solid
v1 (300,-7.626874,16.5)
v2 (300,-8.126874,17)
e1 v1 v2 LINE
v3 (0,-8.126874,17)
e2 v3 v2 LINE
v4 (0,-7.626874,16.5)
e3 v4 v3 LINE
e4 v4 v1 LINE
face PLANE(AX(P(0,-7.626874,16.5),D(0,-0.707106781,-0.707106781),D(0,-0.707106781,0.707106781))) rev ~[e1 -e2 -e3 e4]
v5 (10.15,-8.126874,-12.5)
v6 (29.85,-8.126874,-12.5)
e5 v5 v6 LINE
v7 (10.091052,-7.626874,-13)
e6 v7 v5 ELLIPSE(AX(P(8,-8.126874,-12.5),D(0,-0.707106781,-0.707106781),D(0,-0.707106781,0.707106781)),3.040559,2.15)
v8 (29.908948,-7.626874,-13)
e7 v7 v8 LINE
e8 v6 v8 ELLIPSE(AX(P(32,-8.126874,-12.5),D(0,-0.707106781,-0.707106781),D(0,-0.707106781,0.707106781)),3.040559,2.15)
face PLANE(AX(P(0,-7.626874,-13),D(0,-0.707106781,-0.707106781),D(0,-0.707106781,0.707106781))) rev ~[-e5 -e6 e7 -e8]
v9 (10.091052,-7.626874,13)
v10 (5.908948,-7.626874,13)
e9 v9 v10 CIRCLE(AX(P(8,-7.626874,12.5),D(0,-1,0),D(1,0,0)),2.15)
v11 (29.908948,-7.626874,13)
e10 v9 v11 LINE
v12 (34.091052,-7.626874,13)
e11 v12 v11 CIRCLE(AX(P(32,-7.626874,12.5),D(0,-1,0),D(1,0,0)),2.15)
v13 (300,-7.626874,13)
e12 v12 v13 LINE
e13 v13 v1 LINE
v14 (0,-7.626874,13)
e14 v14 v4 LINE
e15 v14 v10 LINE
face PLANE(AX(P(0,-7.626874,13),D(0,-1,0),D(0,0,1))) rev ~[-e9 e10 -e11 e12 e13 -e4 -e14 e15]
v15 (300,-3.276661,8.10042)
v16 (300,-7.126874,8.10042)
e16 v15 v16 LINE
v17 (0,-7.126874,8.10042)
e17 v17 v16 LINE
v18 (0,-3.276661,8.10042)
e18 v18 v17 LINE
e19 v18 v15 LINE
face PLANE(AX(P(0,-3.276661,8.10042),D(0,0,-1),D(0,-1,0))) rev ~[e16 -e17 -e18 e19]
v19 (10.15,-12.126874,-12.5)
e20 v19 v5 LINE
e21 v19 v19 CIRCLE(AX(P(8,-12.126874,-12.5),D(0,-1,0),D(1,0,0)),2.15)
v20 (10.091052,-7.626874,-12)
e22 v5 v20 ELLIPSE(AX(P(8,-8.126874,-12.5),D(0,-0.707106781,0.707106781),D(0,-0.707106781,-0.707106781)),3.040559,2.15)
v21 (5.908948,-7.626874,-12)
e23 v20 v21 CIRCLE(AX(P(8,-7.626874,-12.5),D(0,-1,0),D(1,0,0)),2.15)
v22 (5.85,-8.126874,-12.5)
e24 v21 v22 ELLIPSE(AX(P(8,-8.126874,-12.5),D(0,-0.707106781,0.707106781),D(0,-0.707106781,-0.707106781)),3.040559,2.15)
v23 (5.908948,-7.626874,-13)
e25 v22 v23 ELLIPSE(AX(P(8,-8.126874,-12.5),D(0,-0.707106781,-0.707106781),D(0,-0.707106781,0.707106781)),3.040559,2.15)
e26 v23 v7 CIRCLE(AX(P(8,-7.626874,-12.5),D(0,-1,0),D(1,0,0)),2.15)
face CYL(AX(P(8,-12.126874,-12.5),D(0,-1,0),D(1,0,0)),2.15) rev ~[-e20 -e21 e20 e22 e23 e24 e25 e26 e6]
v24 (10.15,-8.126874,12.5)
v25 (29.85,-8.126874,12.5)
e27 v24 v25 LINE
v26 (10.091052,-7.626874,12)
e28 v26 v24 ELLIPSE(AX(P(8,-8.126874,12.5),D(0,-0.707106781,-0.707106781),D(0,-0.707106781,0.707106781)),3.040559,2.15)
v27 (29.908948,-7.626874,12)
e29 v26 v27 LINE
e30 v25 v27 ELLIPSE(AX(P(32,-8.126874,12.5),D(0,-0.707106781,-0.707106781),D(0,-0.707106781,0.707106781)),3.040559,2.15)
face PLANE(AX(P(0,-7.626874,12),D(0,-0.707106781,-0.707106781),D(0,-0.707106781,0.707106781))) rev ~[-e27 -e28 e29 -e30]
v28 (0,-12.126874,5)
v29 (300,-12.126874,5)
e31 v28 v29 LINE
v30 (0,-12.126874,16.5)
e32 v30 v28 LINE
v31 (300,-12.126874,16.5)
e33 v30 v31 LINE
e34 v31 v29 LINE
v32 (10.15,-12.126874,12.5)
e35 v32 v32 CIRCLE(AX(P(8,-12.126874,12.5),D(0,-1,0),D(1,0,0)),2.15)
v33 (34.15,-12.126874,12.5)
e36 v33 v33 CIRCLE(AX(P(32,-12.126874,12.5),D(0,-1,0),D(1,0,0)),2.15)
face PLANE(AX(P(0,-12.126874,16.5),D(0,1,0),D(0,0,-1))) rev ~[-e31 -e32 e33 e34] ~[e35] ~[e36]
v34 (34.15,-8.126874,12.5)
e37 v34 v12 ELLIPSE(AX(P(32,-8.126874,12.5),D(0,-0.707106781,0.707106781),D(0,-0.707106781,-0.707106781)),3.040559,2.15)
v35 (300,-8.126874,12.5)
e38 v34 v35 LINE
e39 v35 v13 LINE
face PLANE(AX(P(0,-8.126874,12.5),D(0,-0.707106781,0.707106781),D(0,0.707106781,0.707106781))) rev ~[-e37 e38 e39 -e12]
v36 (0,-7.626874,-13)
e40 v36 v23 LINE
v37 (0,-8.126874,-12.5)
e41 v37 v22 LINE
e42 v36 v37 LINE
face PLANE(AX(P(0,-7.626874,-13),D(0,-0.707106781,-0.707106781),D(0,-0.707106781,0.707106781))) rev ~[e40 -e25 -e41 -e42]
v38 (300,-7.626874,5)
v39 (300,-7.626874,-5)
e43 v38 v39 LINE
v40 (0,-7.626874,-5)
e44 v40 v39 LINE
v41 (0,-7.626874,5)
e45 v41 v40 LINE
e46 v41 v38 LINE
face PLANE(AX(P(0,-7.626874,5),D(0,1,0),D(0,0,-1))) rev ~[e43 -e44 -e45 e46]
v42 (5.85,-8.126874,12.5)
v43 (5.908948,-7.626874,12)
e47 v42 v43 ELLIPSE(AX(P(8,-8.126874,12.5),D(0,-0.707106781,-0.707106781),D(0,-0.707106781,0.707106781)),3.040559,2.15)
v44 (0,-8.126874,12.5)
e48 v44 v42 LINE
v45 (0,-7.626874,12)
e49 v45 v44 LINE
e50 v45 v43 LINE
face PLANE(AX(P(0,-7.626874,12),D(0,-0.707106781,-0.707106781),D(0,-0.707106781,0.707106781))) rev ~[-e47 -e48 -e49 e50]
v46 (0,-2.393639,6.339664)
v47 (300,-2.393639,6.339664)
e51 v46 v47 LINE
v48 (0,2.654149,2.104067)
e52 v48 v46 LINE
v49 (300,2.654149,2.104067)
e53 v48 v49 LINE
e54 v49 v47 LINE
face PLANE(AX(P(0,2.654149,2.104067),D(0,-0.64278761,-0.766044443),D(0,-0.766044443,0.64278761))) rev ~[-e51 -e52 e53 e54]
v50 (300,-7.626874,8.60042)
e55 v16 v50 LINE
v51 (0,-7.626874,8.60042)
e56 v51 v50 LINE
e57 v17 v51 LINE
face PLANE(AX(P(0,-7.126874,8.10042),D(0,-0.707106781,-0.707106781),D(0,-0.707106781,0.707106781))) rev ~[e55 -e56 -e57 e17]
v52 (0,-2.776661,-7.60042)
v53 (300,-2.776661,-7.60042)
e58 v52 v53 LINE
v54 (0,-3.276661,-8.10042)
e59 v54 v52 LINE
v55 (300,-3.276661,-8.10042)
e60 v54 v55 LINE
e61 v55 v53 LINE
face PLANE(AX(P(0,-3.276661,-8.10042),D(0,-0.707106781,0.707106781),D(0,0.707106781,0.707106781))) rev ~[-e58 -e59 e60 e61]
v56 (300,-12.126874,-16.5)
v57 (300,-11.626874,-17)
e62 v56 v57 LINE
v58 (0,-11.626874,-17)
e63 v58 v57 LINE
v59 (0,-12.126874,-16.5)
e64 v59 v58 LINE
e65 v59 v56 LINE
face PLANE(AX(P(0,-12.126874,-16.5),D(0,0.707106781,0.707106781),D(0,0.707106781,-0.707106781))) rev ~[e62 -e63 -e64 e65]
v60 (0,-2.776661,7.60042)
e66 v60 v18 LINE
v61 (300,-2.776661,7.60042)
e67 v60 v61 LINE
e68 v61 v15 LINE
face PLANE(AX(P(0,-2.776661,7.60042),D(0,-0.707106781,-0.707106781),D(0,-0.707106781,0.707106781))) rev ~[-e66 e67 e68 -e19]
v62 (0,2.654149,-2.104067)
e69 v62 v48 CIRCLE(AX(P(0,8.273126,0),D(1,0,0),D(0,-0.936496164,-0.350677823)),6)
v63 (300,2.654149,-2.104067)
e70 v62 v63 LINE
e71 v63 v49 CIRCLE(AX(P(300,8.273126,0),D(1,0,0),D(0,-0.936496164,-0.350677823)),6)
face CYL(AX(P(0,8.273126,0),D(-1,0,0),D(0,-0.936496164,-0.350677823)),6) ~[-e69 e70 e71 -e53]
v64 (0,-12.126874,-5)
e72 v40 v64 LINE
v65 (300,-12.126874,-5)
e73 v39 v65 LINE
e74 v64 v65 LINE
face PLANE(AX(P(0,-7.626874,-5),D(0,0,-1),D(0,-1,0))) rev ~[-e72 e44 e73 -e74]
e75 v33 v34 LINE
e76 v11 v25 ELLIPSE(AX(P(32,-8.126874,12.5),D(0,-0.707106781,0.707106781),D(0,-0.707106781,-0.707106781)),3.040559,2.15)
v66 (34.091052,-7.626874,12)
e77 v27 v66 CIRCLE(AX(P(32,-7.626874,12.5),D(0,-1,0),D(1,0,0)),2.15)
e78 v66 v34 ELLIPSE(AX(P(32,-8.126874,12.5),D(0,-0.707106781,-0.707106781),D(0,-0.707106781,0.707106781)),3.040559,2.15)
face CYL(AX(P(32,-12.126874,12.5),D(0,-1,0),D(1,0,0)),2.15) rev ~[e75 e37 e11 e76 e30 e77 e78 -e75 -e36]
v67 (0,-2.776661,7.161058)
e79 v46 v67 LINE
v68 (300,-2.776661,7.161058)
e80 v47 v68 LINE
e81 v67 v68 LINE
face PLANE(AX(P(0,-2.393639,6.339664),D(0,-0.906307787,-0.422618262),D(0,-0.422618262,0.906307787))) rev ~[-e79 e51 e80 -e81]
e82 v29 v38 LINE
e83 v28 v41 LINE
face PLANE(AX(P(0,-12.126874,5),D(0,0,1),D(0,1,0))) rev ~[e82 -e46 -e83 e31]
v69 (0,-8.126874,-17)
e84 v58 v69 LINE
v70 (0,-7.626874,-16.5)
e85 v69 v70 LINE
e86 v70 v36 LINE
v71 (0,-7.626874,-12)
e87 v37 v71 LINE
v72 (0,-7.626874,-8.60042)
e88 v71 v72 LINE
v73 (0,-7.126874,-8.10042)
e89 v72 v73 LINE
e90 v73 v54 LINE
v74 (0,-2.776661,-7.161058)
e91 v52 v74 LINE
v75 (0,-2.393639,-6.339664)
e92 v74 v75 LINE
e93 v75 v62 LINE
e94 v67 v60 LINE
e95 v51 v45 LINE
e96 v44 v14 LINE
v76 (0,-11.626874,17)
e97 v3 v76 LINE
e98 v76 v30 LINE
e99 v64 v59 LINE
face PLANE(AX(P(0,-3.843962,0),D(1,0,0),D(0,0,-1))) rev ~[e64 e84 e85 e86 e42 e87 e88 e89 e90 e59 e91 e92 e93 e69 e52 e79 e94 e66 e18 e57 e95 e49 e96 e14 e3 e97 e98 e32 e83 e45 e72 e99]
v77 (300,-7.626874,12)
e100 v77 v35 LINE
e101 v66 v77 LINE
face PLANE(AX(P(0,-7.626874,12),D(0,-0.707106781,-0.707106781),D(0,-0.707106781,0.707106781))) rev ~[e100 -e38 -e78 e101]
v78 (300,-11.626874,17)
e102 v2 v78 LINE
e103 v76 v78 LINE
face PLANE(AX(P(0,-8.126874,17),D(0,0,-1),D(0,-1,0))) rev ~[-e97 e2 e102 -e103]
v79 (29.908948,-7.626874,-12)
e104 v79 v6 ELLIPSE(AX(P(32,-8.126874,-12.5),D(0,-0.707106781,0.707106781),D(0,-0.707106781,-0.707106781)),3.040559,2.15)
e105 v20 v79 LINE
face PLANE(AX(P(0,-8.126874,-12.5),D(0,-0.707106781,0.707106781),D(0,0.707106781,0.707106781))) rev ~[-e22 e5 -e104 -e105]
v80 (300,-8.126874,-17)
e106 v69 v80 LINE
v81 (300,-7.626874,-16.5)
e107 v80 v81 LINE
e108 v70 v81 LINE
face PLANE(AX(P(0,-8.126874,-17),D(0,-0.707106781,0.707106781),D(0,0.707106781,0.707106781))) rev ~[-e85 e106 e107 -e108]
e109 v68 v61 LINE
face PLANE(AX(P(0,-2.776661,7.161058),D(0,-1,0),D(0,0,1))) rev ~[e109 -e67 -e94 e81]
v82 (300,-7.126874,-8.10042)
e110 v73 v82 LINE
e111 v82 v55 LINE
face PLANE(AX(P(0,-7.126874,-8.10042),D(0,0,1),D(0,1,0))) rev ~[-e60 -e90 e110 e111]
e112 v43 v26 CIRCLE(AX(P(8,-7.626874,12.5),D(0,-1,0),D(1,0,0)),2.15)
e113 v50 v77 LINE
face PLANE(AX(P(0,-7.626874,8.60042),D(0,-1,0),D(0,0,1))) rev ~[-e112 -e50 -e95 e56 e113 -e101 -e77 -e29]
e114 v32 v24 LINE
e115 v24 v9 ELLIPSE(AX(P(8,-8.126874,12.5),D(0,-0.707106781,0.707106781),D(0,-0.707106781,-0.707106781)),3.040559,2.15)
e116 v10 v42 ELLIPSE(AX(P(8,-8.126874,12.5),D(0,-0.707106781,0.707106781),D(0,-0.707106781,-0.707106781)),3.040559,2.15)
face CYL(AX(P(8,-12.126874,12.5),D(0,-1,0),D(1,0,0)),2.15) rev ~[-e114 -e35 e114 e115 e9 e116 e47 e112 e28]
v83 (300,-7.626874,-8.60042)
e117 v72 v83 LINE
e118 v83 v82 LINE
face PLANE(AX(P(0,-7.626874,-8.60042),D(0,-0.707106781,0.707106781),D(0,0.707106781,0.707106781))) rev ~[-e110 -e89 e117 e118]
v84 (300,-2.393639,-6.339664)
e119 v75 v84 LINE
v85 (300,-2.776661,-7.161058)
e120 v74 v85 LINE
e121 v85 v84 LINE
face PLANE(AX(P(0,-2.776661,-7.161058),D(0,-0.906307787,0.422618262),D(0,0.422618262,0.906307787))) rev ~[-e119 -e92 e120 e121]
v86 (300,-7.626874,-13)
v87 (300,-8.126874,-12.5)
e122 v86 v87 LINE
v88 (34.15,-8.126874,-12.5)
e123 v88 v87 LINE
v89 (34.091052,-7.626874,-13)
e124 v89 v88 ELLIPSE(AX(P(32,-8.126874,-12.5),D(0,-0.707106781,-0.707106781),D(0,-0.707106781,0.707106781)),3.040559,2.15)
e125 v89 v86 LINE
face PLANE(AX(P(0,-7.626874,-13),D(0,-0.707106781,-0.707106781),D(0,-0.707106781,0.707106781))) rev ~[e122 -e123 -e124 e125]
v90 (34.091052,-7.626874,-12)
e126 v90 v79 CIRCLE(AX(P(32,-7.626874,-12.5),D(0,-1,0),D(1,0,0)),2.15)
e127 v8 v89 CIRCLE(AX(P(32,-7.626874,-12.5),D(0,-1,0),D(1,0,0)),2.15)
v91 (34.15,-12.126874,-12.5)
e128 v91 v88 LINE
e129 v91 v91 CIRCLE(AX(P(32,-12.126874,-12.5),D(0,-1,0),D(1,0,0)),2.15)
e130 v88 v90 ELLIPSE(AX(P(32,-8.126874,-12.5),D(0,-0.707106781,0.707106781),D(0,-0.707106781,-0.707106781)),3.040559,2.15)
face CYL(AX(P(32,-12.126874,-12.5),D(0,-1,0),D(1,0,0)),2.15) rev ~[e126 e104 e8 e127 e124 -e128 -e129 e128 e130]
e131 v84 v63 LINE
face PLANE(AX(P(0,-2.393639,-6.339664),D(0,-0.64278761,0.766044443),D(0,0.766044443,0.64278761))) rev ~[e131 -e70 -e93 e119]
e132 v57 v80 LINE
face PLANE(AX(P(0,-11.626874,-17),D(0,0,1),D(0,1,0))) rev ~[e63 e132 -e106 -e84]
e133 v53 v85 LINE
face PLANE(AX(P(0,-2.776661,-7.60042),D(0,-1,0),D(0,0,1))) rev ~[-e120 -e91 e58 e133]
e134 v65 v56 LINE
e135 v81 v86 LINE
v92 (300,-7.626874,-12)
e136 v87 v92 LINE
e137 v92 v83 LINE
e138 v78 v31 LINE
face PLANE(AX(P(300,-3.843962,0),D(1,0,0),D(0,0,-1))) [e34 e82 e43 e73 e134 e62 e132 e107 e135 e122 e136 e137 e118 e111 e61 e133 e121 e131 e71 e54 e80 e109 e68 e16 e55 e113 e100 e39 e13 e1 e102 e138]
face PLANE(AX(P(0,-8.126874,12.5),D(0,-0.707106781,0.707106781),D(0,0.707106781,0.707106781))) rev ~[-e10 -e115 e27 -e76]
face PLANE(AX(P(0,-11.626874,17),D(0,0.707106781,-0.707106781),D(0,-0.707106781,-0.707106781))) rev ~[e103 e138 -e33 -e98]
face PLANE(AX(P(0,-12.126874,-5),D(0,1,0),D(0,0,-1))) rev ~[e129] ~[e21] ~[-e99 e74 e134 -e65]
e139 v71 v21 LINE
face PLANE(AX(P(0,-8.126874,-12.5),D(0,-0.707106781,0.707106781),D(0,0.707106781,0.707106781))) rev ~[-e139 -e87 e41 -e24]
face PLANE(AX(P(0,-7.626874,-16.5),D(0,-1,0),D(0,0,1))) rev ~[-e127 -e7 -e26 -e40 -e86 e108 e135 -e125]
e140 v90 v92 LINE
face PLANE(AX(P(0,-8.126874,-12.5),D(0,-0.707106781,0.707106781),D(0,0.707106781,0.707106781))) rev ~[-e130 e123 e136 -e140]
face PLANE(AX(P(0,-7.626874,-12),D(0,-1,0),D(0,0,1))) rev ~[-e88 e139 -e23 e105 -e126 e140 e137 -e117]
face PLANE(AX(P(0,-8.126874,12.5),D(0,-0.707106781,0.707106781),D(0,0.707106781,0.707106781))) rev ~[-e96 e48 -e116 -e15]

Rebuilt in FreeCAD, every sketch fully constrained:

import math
import FreeCAD as App
import Part
import Sketcher

V = App.Vector
Q = App.Units.Quantity

doc = App.newDocument("Part")
params = doc.addObject("Spreadsheet::Sheet", "Params")
for row, (alias, value) in enumerate([
    ("sketch1_radius", "6 mm"),
    ("sketch1_height", "10 mm"),
    ("sketch1_width", "3.5 mm"),
    ("sketch1_width2", "4.5 mm"),
    ("sketch1_height2", "11.5 mm"),
    ("pad1_length", "300 mm"),
    ("sketch2_diameter", "4.3 mm"),
    ("pocket1_length", "10 mm"),
], start=1):
    params.set(f"A{row}", alias)
    params.set(f"B{row}", "=" + value)
    params.setAlias(f"B{row}", alias)

body = doc.addObject("PartDesign::Body", "Body")

sketch1 = body.newObject("Sketcher::SketchObject", "Sketch")
sketch1.AttachmentSupport = (doc.getObject("YZ_Plane"), [""])
sketch1.MapMode = "FlatFace"
sketch1.addGeometry([
    Part.LineSegment(V(2.65, 2.1, 0), V(-2.39, 6.34, 0)),
    Part.LineSegment(V(-2.39, 6.34, 0), V(-2.78, 7.16, 0)),
    Part.LineSegment(V(-2.78, 7.16, 0), V(-2.78, 7.6, 0)),
    Part.LineSegment(V(-2.78, 7.6, 0), V(-3.28, 8.1, 0)),
    Part.LineSegment(V(-3.28, 8.1, 0), V(-7.13, 8.1, 0)),
    Part.LineSegment(V(-7.13, 8.1, 0), V(-7.63, 8.6, 0)),
    Part.LineSegment(V(-7.63, 8.6, 0), V(-7.63, 12, 0)),
    Part.LineSegment(V(-7.63, 12, 0), V(-8.13, 12.5, 0)),
    Part.LineSegment(V(-8.13, 12.5, 0), V(-7.63, 13, 0)),
    Part.LineSegment(V(-7.63, 13, 0), V(-7.63, 16.5, 0)),
    Part.LineSegment(V(-7.63, 16.5, 0), V(-8.13, 17, 0)),
    Part.LineSegment(V(-8.13, 17, 0), V(-11.63, 17, 0)),
    Part.LineSegment(V(-11.63, 17, 0), V(-12.13, 16.5, 0)),
    Part.LineSegment(V(-12.13, 16.5, 0), V(-12.13, 5, 0)),
    Part.LineSegment(V(-12.13, 5, 0), V(-7.63, 5, 0)),
    Part.LineSegment(V(-7.63, 5, 0), V(-7.63, -5, 0)),
    Part.LineSegment(V(-7.63, -5, 0), V(-12.13, -5, 0)),
    Part.LineSegment(V(-12.13, -5, 0), V(-12.13, -16.5, 0)),
    Part.LineSegment(V(-12.13, -16.5, 0), V(-11.63, -17, 0)),
    Part.LineSegment(V(-11.63, -17, 0), V(-8.13, -17, 0)),
    Part.LineSegment(V(-8.13, -17, 0), V(-7.63, -16.5, 0)),
    Part.LineSegment(V(-7.63, -16.5, 0), V(-7.63, -13, 0)),
    Part.LineSegment(V(-7.63, -13, 0), V(-8.13, -12.5, 0)),
    Part.LineSegment(V(-8.13, -12.5, 0), V(-7.63, -12, 0)),
    Part.LineSegment(V(-7.63, -12, 0), V(-7.63, -8.6, 0)),
    Part.LineSegment(V(-7.63, -8.6, 0), V(-7.13, -8.1, 0)),
    Part.LineSegment(V(-7.13, -8.1, 0), V(-3.28, -8.1, 0)),
    Part.LineSegment(V(-3.28, -8.1, 0), V(-2.78, -7.6, 0)),
    Part.LineSegment(V(-2.78, -7.6, 0), V(-2.78, -7.16, 0)),
    Part.LineSegment(V(-2.78, -7.16, 0), V(-2.39, -6.34, 0)),
    Part.LineSegment(V(-2.39, -6.34, 0), V(2.65, -2.1, 0)),
    Part.ArcOfCircle(Part.Circle(V(8.27, 0, 0), V(0, 0, 1), 6), math.radians(-159), math.radians(159)),
], False)
sketch1.addConstraint([
    Sketcher.Constraint("Coincident", 0, 2, 1, 1),
    Sketcher.Constraint("Coincident", 1, 2, 2, 1),
    Sketcher.Constraint("Coincident", 2, 2, 3, 1),
    Sketcher.Constraint("Coincident", 3, 2, 4, 1),
    Sketcher.Constraint("Coincident", 4, 2, 5, 1),
    Sketcher.Constraint("Coincident", 5, 2, 6, 1),
    Sketcher.Constraint("Coincident", 6, 2, 7, 1),
    Sketcher.Constraint("Coincident", 7, 2, 8, 1),
    Sketcher.Constraint("Coincident", 8, 2, 9, 1),
    Sketcher.Constraint("Coincident", 9, 2, 10, 1),
    Sketcher.Constraint("Coincident", 10, 2, 11, 1),
    Sketcher.Constraint("Coincident", 11, 2, 12, 1),
    Sketcher.Constraint("Coincident", 12, 2, 13, 1),
    Sketcher.Constraint("Coincident", 13, 2, 14, 1),
    Sketcher.Constraint("Coincident", 14, 2, 15, 1),
    Sketcher.Constraint("Coincident", 15, 2, 16, 1),
    Sketcher.Constraint("Coincident", 16, 2, 17, 1),
    Sketcher.Constraint("Coincident", 17, 2, 18, 1),
    Sketcher.Constraint("Coincident", 18, 2, 19, 1),
    Sketcher.Constraint("Coincident", 19, 2, 20, 1),
    Sketcher.Constraint("Coincident", 20, 2, 21, 1),
    Sketcher.Constraint("Coincident", 21, 2, 22, 1),
    Sketcher.Constraint("Coincident", 22, 2, 23, 1),
    Sketcher.Constraint("Coincident", 23, 2, 24, 1),
    Sketcher.Constraint("Coincident", 24, 2, 25, 1),
    Sketcher.Constraint("Coincident", 25, 2, 26, 1),
    Sketcher.Constraint("Coincident", 26, 2, 27, 1),
    Sketcher.Constraint("Coincident", 27, 2, 28, 1),
    Sketcher.Constraint("Coincident", 28, 2, 29, 1),
    Sketcher.Constraint("Coincident", 29, 2, 30, 1),
    Sketcher.Constraint("Coincident", 30, 2, 31, 1),
    Sketcher.Constraint("Coincident", 31, 2, 0, 1),
    Sketcher.Constraint("Vertical", 2),
    Sketcher.Constraint("Horizontal", 4),
    Sketcher.Constraint("Vertical", 6),
    Sketcher.Constraint("Vertical", 9),
    Sketcher.Constraint("Horizontal", 11),
    Sketcher.Constraint("Vertical", 13),
    Sketcher.Constraint("Horizontal", 14),
    Sketcher.Constraint("Vertical", 15),
    Sketcher.Constraint("Horizontal", 16),
    Sketcher.Constraint("Vertical", 17),
    Sketcher.Constraint("Horizontal", 19),
    Sketcher.Constraint("Vertical", 21),
    Sketcher.Constraint("Vertical", 24),
    Sketcher.Constraint("Horizontal", 26),
    Sketcher.Constraint("Vertical", 28),
    Sketcher.Constraint("Symmetric", 13, 2, 16, 2, -1),
    Sketcher.Constraint("Symmetric", 11, 2, 18, 2, -1),
    Sketcher.Constraint("Symmetric", 9, 2, 20, 2, -1),
    Sketcher.Constraint("Symmetric", 7, 2, 22, 2, -1),
    Sketcher.Constraint("Symmetric", 6, 2, 23, 2, -1),
    Sketcher.Constraint("Symmetric", 4, 2, 25, 2, -1),
    Sketcher.Constraint("Symmetric", 2, 2, 27, 2, -1),
    Sketcher.Constraint("Symmetric", 0, 2, 29, 2, -1),
    Sketcher.Constraint("Symmetric", 30, 2, 31, 2, -1),
    Sketcher.Constraint("Parallel", 3, 5),
    Sketcher.Constraint("Parallel", 5, 7),
    Sketcher.Constraint("Perpendicular", 7, 8),
    Sketcher.Constraint("Perpendicular", 8, 10),
    Sketcher.Constraint("Perpendicular", 10, 12),
    Sketcher.Constraint("Perpendicular", 12, 18),
    Sketcher.Constraint("Perpendicular", 18, 20),
    Sketcher.Constraint("Perpendicular", 20, 22),
    Sketcher.Constraint("Perpendicular", 22, 23),
    Sketcher.Constraint("Parallel", 23, 25),
    Sketcher.Constraint("Parallel", 25, 27),
    Sketcher.Constraint("Horizontal", 9, 2, 12, 2),
    Sketcher.Constraint("Vertical", 6, 2, 8, 2),
    Sketcher.Constraint("Vertical", 7, 2, 10, 2),
    Sketcher.Constraint("Vertical", 9, 2, 14, 2),
    Sketcher.Constraint("Equal", 19, 9),
    Sketcher.Constraint("Equal", 2, 28),
    Sketcher.Constraint("Equal", 3, 5),
    Sketcher.Constraint("Equal", 5, 7),
    Sketcher.Constraint("Radius", 31, Q("6 mm")),
    Sketcher.Constraint("DistanceY", 15, 2, 15, 1, Q("10 mm")),
    Sketcher.Constraint("Angle", 0, Q("140 deg")),
    Sketcher.Constraint("Angle", 1, Q("115 deg")),
    Sketcher.Constraint("DistanceX", 11, 2, 11, 1, Q("3.5 mm")),
    Sketcher.Constraint("DistanceX", 14, 1, 14, 2, Q("4.5 mm")),
    Sketcher.Constraint("DistanceY", 13, 2, 13, 1, Q("11.5 mm")),
    Sketcher.Constraint("DistanceX", 4, 2, 31, 3, Q("15.4 mm")),
    Sketcher.Constraint("DistanceY", 6, 1, 6, 2, Q("3.39958 mm")),
    Sketcher.Constraint("Distance", 0, Q("6.58942 mm")),
    Sketcher.Constraint("DistanceX", 4, 2, 4, 1, Q("3.850213 mm")),
    Sketcher.Constraint("DistanceY", 2, 1, 2, 2, Q("0.439362 mm")),
    Sketcher.Constraint("DistanceX", 0, 2, -1, 1, Q("2.393639 mm")),
])
sketch1.setExpression("Constraints[75]", "Params.sketch1_radius")
sketch1.setExpression("Constraints[76]", "Params.sketch1_height")
sketch1.setExpression("Constraints[79]", "Params.sketch1_width")
sketch1.setExpression("Constraints[80]", "Params.sketch1_width2")
sketch1.setExpression("Constraints[81]", "Params.sketch1_height2")
pad1 = body.newObject("PartDesign::Pad", "Pad")
pad1.Profile = sketch1
pad1.setExpression("Length", "Params.pad1_length")

sketch2 = body.newObject("Sketcher::SketchObject", "Sketch001")
sketch2.AttachmentSupport = (doc.getObject("XZ_Plane"), [""])
sketch2.MapMode = "FlatFace"
sketch2.AttachmentOffset = App.Placement(V(0, 0, 12.126874), App.Rotation())
sketch2.addGeometry([
    Part.Circle(V(32, -12.5, 0), V(0, 0, 1), 2.1),
    Part.Circle(V(8, -12.5, 0), V(0, 0, 1), 2.1),
    Part.Circle(V(32, 12.5, 0), V(0, 0, 1), 2.1),
    Part.Circle(V(8, 12.5, 0), V(0, 0, 1), 2.1),
], False)
sketch2.addConstraint([
    Sketcher.Constraint("Equal", 0, 1),
    Sketcher.Constraint("Equal", 1, 2),
    Sketcher.Constraint("Equal", 2, 3),
    Sketcher.Constraint("Symmetric", 0, 3, 2, 3, -1),
    Sketcher.Constraint("Symmetric", 1, 3, 3, 3, -1),
    Sketcher.Constraint("Horizontal", 0, 3, 1, 3),
    Sketcher.Constraint("Diameter", 0, Q("4.3 mm")),
    Sketcher.Constraint("DistanceX", -1, 1, 0, 3, Q("32 mm")),
    Sketcher.Constraint("DistanceX", -1, 1, 1, 3, Q("8 mm")),
    Sketcher.Constraint("DistanceY", 0, 3, 2, 3, Q("25 mm")),
])
sketch2.setExpression("Constraints[6]", "Params.sketch2_diameter")
pocket1 = body.newObject("PartDesign::Pocket", "Pocket")
pocket1.Profile = sketch2
pocket1.setExpression("Length", "Params.pocket1_length")

doc.recompute()
